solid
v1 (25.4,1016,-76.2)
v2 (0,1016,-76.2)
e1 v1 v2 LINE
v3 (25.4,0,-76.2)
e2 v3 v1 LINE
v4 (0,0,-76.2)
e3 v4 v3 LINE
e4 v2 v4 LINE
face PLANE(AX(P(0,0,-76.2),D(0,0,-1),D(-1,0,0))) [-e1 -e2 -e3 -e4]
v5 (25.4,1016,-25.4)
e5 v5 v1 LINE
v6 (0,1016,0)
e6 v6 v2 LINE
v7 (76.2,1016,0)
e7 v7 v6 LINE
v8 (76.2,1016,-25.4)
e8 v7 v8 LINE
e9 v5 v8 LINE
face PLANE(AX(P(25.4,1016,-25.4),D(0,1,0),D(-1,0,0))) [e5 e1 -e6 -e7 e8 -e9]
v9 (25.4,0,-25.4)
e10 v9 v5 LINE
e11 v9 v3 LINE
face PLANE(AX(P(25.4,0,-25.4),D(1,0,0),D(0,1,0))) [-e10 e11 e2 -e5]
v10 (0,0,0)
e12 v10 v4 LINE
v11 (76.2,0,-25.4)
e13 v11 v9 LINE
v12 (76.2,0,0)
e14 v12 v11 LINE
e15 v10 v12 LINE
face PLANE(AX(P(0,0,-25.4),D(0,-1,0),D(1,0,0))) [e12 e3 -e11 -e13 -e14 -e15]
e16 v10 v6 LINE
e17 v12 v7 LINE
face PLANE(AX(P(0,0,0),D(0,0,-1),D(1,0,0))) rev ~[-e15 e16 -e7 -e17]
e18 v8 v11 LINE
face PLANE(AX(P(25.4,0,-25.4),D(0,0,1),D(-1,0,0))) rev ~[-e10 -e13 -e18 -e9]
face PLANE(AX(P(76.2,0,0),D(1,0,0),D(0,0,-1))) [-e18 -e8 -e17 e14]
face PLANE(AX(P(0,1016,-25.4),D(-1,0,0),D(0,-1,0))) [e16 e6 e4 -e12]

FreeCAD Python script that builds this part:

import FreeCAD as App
import Part
import Sketcher
from FreeCAD import Vector
Q = App.Units.Quantity

doc = App.newDocument("Part")
body = doc.addObject("PartDesign::Body", "Body")

# Sketch on XZ plane
sketch1 = body.newObject("Sketcher::SketchObject", "Sketch")
sketch1.AttachmentSupport = (doc.getObject("XZ_Plane"), [""])
sketch1.MapMode = "FlatFace"
sketch1.addGeometry([
    Part.LineSegment(Vector(0, -25, 0), Vector(0, 0, 0)),
    Part.LineSegment(Vector(0, 0, 0), Vector(25, 0, 0)),
    Part.LineSegment(Vector(25, 0, 0), Vector(25, -25, 0)),
    Part.LineSegment(Vector(25, -25, 0), Vector(0, -25, 0)),
], False)
sketch1.addConstraint([
    Sketcher.Constraint("Coincident", 0, 2, 1, 1),
    Sketcher.Constraint("Coincident", 1, 2, 2, 1),
    Sketcher.Constraint("Coincident", 2, 2, 3, 1),
    Sketcher.Constraint("Coincident", 3, 2, 0, 1),
    Sketcher.Constraint("Vertical", 0),
    Sketcher.Constraint("Horizontal", 1),
    Sketcher.Constraint("Vertical", 2),
    Sketcher.Constraint("Horizontal", 3),
    Sketcher.Constraint("Coincident", 0, 2, -1, 1),
    Sketcher.Constraint("Equal", 3, 0),
    Sketcher.Constraint("DistanceX", 1, 1, 1, 2, Q("1 in")),
])
pad1 = body.newObject("PartDesign::Pad", "Pad")
pad1.Profile = sketch1
pad1.Length = Q("40 in")
pad1.Reversed = True

# Sketch on YZ plane
sketch2 = body.newObject("Sketcher::SketchObject", "Sketch001")
sketch2.AttachmentSupport = (doc.getObject("YZ_Plane"), [""])
sketch2.MapMode = "FlatFace"
sketch2.AttachmentOffset = App.Placement(Vector(0, 0, 1 * 25.4), App.Rotation())
sketch2.addGeometry([
    Part.LineSegment(Vector(1016, 0, 0), Vector(0, 0, 0)),
    Part.LineSegment(Vector(0, 0, 0), Vector(0, -25, 0)),
    Part.LineSegment(Vector(0, -25, 0), Vector(1016, -25, 0)),
    Part.LineSegment(Vector(1016, -25, 0), Vector(1016, 0, 0)),
], False)
sketch2.addConstraint([
    Sketcher.Constraint("Coincident", 0, 2, 1, 1),
    Sketcher.Constraint("Coincident", 1, 2, 2, 1),
    Sketcher.Constraint("Coincident", 2, 2, 3, 1),
    Sketcher.Constraint("Coincident", 3, 2, 0, 1),
    Sketcher.Constraint("Horizontal", 0),
    Sketcher.Constraint("Vertical", 1),
    Sketcher.Constraint("Horizontal", 2),
    Sketcher.Constraint("Vertical", 3),
    Sketcher.Constraint("Coincident", 0, 2, -1, 1),
    Sketcher.Constraint("DistanceX", 0, 2, 0, 1, Q("40 in")),
    Sketcher.Constraint("DistanceY", 1, 2, 1, 1, Q("1 in")),
])
pad2 = body.newObject("PartDesign::Pad", "Pad001")
pad2.Profile = sketch2
pad2.Length = Q("2 in")

# Sketch on XY plane
sketch3 = body.newObject("Sketcher::SketchObject", "Sketch002")
sketch3.AttachmentSupport = (doc.getObject("XY_Plane"), [""])
sketch3.MapMode = "FlatFace"
sketch3.AttachmentOffset = App.Placement(Vector(0, 0, -1 * 25.4), App.Rotation())
sketch3.addGeometry([
    Part.LineSegment(Vector(25, 0, 0), Vector(0, 0, 0)),
    Part.LineSegment(Vector(0, 0, 0), Vector(0, 1016, 0)),
    Part.LineSegment(Vector(0, 1016, 0), Vector(25, 1016, 0)),
    Part.LineSegment(Vector(25, 1016, 0), Vector(25, 0, 0)),
], False)
sketch3.addConstraint([
    Sketcher.Constraint("Coincident", 0, 2, 1, 1),
    Sketcher.Constraint("Coincident", 1, 2, 2, 1),
    Sketcher.Constraint("Coincident", 2, 2, 3, 1),
    Sketcher.Constraint("Coincident", 3, 2, 0, 1),
    Sketcher.Constraint("Horizontal", 0),
    Sketcher.Constraint("Vertical", 1),
    Sketcher.Constraint("Horizontal", 2),
    Sketcher.Constraint("Vertical", 3),
    Sketcher.Constraint("Coincident", 0, 2, -1, 1),
    Sketcher.Constraint("DistanceX", 0, 2, 0, 1, Q("1 in")),
    Sketcher.Constraint("DistanceY", 1, 1, 1, 2, Q("40 in")),
])
pad3 = body.newObject("PartDesign::Pad", "Pad002")
pad3.Profile = sketch3
pad3.Length = Q("2 in")
pad3.Reversed = True

doc.recompute()
